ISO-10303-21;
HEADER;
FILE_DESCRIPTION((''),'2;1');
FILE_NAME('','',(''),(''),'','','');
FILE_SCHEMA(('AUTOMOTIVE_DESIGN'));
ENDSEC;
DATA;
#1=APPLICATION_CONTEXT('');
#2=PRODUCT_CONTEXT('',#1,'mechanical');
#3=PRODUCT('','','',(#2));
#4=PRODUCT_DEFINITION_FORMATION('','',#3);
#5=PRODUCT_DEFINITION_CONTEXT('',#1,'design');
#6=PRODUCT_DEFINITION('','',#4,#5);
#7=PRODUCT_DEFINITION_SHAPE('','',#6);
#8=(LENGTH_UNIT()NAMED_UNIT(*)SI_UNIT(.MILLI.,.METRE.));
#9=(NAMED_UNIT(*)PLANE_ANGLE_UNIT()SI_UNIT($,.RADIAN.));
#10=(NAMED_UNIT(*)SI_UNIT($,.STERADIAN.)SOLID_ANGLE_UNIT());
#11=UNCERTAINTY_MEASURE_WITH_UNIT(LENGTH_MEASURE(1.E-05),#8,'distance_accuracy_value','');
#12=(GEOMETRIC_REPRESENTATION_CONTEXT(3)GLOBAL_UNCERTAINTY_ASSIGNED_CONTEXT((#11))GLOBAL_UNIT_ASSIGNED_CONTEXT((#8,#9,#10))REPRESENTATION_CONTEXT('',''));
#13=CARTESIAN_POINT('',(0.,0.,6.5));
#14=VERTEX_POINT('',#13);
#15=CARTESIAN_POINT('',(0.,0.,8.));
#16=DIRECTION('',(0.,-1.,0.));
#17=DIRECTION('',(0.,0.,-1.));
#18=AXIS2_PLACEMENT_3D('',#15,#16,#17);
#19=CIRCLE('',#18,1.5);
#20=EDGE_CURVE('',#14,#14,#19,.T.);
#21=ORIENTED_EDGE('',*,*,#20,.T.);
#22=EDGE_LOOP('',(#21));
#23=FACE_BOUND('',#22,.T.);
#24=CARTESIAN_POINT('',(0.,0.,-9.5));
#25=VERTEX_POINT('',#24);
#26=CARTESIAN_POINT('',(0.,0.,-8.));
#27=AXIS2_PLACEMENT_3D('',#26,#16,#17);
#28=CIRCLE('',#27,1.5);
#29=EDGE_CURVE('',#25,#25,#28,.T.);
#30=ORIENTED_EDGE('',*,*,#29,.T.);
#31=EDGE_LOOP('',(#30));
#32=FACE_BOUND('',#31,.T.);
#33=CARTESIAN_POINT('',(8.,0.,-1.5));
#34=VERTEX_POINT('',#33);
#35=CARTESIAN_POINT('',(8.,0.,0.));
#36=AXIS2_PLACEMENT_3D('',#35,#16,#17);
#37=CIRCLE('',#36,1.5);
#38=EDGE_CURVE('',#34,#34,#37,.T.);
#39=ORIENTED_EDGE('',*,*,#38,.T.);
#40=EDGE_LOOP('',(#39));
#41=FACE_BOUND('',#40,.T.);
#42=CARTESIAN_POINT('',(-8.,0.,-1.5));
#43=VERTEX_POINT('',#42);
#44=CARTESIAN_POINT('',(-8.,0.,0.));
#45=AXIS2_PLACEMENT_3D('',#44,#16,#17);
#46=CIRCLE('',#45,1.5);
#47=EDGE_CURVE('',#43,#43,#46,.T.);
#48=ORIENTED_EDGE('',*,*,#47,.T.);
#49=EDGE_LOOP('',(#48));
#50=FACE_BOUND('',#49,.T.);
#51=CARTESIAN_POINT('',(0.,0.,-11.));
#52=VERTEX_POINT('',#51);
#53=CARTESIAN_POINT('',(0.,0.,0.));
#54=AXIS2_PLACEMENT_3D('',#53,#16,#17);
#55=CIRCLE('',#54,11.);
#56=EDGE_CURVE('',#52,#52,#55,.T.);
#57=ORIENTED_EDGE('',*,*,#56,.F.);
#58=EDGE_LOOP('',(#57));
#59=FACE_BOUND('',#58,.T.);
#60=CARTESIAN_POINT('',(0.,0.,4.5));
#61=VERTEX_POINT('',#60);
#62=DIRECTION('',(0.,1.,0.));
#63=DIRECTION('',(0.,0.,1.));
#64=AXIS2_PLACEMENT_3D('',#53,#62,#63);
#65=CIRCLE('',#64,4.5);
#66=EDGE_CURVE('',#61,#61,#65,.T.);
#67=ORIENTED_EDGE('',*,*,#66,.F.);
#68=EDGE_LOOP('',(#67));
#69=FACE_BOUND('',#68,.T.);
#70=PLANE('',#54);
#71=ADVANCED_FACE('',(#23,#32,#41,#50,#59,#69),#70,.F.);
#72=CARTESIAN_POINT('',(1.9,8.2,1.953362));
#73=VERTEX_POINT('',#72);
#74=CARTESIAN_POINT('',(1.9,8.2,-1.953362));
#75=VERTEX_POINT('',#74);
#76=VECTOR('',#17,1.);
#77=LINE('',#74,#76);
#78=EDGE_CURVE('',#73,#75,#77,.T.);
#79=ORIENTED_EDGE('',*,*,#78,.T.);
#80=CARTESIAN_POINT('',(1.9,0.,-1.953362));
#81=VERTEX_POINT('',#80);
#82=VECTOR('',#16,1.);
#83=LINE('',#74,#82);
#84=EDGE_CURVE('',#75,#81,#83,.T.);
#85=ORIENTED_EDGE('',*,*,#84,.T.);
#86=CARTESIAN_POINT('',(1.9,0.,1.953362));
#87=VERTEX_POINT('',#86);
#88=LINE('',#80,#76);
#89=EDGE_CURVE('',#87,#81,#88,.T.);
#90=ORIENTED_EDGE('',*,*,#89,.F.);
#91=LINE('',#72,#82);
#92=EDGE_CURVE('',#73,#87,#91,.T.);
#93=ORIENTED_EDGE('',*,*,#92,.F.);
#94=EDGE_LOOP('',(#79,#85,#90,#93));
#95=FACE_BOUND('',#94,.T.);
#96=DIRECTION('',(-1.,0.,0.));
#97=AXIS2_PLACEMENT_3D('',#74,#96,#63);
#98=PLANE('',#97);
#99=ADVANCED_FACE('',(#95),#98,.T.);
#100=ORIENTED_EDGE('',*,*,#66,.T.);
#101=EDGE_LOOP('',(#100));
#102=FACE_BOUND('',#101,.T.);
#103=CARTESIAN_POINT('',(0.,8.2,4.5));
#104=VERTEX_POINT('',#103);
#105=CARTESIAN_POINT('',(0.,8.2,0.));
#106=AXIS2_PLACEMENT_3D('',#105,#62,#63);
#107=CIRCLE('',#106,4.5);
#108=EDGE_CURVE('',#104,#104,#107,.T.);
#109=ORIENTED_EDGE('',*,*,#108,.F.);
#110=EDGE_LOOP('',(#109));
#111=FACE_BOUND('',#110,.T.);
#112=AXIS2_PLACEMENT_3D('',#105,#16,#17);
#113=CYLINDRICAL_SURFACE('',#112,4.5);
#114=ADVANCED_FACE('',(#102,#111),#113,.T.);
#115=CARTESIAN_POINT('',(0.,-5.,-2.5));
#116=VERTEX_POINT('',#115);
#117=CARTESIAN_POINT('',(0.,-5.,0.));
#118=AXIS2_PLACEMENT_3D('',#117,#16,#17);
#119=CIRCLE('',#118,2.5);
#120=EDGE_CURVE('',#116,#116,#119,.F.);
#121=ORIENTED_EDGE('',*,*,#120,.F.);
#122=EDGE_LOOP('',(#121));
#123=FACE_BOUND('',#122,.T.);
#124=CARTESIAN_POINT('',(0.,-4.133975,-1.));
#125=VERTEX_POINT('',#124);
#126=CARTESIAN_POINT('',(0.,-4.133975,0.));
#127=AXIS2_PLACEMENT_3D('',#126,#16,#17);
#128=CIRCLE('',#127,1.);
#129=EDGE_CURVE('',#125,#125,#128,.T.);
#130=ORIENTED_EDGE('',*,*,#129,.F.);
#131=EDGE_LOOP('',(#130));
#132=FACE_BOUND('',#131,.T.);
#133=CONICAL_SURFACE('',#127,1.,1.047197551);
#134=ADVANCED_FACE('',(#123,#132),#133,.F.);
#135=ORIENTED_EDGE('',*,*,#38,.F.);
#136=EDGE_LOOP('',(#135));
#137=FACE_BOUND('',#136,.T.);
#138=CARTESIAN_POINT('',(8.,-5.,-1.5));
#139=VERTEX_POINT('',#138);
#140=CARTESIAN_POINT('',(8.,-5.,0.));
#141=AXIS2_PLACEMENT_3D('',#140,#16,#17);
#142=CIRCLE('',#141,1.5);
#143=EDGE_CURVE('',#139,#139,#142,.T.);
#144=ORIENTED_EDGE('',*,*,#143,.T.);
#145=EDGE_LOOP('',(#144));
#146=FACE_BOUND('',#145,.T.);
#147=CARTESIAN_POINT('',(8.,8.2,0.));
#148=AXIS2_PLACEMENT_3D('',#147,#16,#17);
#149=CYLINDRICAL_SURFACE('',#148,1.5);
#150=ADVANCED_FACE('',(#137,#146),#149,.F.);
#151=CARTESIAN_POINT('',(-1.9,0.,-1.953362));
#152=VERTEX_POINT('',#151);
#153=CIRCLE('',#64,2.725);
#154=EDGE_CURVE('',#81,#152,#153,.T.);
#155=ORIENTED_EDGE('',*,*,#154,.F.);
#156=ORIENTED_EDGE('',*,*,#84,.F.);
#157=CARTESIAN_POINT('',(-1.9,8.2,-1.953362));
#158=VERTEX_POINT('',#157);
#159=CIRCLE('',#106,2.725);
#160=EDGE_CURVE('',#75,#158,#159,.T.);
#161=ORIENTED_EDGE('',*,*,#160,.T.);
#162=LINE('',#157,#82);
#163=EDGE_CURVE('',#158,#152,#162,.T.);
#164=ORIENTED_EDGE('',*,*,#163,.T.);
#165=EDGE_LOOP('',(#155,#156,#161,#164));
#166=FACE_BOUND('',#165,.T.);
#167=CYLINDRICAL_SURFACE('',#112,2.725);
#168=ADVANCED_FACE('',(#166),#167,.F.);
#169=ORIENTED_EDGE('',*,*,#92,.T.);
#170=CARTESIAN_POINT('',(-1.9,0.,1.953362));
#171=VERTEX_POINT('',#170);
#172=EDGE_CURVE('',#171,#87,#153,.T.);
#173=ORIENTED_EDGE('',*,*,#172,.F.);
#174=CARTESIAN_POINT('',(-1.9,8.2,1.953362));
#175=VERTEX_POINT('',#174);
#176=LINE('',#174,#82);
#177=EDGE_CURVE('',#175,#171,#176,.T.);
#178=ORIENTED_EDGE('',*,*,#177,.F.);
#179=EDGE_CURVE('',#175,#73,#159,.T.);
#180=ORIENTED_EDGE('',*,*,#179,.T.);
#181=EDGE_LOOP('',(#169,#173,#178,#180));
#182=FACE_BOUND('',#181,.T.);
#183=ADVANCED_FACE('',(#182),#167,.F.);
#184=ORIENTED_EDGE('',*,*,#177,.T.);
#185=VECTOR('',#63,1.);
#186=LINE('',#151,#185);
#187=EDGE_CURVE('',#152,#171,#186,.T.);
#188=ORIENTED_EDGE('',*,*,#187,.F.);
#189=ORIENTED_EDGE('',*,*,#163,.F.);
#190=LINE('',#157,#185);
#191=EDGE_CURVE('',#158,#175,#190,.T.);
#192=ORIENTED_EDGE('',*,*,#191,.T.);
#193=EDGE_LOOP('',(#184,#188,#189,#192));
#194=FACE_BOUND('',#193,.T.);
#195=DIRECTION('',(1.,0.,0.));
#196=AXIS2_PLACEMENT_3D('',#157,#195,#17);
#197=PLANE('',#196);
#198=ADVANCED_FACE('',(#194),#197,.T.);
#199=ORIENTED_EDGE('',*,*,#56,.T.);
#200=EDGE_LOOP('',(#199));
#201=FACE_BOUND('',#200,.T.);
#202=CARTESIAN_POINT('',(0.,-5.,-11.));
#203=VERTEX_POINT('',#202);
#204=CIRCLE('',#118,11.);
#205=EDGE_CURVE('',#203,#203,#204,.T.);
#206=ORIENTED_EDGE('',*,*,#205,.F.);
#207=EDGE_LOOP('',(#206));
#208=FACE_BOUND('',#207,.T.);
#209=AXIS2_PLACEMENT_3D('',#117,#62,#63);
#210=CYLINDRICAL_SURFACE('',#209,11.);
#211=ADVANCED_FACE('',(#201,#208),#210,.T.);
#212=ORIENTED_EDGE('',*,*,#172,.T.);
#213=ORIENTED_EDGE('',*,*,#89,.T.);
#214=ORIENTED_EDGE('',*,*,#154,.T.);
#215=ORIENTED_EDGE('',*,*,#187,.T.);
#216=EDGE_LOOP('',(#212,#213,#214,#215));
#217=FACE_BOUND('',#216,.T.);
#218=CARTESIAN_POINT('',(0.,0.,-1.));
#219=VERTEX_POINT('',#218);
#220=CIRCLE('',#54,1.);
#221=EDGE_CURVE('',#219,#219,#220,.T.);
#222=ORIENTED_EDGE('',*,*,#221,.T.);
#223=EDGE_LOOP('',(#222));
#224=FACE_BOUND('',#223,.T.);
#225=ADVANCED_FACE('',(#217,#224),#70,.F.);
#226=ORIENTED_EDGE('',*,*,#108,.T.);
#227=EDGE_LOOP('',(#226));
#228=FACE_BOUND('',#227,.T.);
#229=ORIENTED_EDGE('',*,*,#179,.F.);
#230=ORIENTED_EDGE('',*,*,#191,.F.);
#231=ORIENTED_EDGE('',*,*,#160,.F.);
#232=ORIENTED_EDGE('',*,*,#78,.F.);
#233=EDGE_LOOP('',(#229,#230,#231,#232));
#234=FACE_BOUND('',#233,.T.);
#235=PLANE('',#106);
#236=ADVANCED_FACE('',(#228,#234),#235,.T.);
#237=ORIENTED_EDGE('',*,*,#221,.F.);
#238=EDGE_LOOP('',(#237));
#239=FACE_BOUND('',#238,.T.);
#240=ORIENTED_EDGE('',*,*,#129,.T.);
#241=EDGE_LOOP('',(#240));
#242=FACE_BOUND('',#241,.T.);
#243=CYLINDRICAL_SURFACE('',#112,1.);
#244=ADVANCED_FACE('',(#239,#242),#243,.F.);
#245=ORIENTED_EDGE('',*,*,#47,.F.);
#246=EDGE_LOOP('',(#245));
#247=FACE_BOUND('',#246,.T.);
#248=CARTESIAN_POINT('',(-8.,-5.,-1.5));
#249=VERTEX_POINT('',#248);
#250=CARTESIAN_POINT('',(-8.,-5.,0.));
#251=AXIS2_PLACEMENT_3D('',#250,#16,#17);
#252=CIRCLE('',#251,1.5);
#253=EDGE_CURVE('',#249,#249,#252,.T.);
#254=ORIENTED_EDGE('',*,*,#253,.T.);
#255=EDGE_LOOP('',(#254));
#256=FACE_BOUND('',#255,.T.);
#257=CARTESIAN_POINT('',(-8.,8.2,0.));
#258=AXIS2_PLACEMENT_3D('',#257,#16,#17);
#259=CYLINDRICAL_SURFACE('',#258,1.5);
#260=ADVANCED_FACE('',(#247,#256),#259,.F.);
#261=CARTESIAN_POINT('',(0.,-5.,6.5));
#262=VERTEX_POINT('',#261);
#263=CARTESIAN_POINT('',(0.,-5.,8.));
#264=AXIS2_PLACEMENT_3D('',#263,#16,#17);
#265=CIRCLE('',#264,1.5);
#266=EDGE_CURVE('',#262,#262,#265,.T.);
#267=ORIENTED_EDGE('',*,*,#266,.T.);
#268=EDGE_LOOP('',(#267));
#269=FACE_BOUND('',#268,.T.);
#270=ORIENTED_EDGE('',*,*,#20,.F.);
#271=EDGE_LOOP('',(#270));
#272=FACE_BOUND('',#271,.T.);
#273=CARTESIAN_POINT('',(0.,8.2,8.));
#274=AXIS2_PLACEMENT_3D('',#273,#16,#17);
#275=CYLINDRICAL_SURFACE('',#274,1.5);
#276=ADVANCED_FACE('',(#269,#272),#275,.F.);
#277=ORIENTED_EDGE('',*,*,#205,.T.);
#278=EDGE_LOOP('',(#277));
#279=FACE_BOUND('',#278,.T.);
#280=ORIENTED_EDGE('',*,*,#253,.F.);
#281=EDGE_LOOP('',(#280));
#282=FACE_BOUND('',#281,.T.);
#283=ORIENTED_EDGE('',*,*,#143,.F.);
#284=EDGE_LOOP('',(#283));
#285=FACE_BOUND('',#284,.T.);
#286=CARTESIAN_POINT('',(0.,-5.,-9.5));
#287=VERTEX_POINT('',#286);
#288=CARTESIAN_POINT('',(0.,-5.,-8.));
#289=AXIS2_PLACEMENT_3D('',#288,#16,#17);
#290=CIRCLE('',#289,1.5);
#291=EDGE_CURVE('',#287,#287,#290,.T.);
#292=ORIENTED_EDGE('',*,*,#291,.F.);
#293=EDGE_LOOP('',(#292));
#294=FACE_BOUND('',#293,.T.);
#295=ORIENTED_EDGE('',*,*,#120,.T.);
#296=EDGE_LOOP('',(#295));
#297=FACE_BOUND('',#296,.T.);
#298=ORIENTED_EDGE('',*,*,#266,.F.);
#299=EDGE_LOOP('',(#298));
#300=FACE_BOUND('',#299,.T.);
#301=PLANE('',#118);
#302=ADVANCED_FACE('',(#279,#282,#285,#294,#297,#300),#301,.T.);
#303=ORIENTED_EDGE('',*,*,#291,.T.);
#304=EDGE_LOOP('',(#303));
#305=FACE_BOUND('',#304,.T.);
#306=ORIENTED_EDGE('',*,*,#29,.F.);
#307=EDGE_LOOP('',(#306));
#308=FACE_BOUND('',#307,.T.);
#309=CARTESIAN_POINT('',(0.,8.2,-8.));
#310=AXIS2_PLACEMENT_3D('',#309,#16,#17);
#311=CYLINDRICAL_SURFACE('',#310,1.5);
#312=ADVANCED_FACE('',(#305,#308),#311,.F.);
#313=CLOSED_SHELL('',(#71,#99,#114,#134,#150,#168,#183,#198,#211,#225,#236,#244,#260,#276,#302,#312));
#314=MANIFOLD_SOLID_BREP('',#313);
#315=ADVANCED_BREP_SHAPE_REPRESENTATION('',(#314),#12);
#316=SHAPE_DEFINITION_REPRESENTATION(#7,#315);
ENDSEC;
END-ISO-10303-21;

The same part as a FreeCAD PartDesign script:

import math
import FreeCAD as App
import Part
import Sketcher
from FreeCAD import Vector
Q = App.Units.Quantity


def edges_at(feature, points):
    """Names of the edges that pass closest to the given points."""
    edges = feature.Shape.Edges
    near = lambda p: min(range(len(edges)), key=lambda i: edges[i].distToShape(Part.Vertex(*p))[0])
    return sorted({f"Edge{near(p) + 1}" for p in points})

doc = App.newDocument("Part")
params = doc.addObject("Spreadsheet::Sheet", "Params")
for row, (alias, value) in enumerate([
    ("sketch1_diameter", "9 mm"),
    ("pad1_length", "8.2 mm"),
    ("sketch2_diameter", "22 mm"),
    ("pad2_length", "5 mm"),
    ("sketch3_diameter", "2 mm"),
    ("sketch4_diameter", "3 mm"),
    ("chamfer_size", "1.5 mm"),
    ("chamfer_size2", "0.866025 mm"),
], start=1):
    params.set(f"A{row}", alias)
    params.set(f"B{row}", "=" + value)
    params.setAlias(f"B{row}", alias)

body = doc.addObject("PartDesign::Body", "Body")

# Sketch on XZ plane
sketch1 = body.newObject("Sketcher::SketchObject", "Sketch")
sketch1.AttachmentSupport = (doc.getObject("XZ_Plane"), [""])
sketch1.MapMode = "FlatFace"
sketch1.addGeometry([
    Part.Circle(Vector(0, 0, 0), Vector(0, 0, 1), 4.5),  # 0
    Part.LineSegment(Vector(-1.9, 2, 0), Vector(-1.9, -2, 0)),  # 1
    Part.ArcOfCircle(Part.Circle(Vector(0, 0, 0), Vector(0, 0, 1), 2.7), math.radians(-134), math.radians(-46)),  # 2
    Part.LineSegment(Vector(1.9, -2, 0), Vector(1.9, 2, 0)),  # 3
    Part.ArcOfCircle(Part.Circle(Vector(0, 0, 0), Vector(0, 0, 1), 2.7), math.radians(46), math.radians(134)),  # 4
], False)
sketch1.addConstraint([
    Sketcher.Constraint("Coincident", 1, 2, 2, 1),
    Sketcher.Constraint("Coincident", 2, 2, 3, 1),
    Sketcher.Constraint("Coincident", 3, 2, 4, 1),
    Sketcher.Constraint("Coincident", 4, 2, 1, 1),
    Sketcher.Constraint("Vertical", 1),
    Sketcher.Constraint("Vertical", 3),
    Sketcher.Constraint("Coincident", 0, 3, -1, 1),
    Sketcher.Constraint("Coincident", 2, 3, -1, 1),
    Sketcher.Constraint("Coincident", 4, 3, -1, 1),
    Sketcher.Constraint("Equal", 2, 4),
    Sketcher.Constraint("Horizontal", 1, 2, 2, 2),
    Sketcher.Constraint("Diameter", 0, Q("9 mm")),
    Sketcher.Constraint("Radius", 2, Q("2.725 mm")),
    Sketcher.Constraint("DistanceX", 1, 2, -1, 1, Q("1.9 mm")),
])
sketch1.setExpression("Constraints[11]", "Params.sketch1_diameter")
pad1 = body.newObject("PartDesign::Pad", "Pad")
pad1.Profile = sketch1
pad1.setExpression("Length", "Params.pad1_length")
pad1.Reversed = True

# Sketch on XZ plane
sketch2 = body.newObject("Sketcher::SketchObject", "Sketch001")
sketch2.AttachmentSupport = (doc.getObject("XZ_Plane"), [""])
sketch2.MapMode = "FlatFace"
sketch2.addGeometry(Part.Circle(Vector(0, 0, 0), Vector(0, 0, 1), 11), False)
sketch2.addConstraint([
    Sketcher.Constraint("Coincident", 0, 3, -1, 1),
    Sketcher.Constraint("Diameter", 0, Q("22 mm")),
])
sketch2.setExpression("Constraints[1]", "Params.sketch2_diameter")
pad2 = body.newObject("PartDesign::Pad", "Pad001")
pad2.Profile = sketch2
pad2.setExpression("Length", "Params.pad2_length")

# Sketch on XZ plane
sketch3 = body.newObject("Sketcher::SketchObject", "Sketch002")
sketch3.AttachmentSupport = (doc.getObject("XZ_Plane"), [""])
sketch3.MapMode = "FlatFace"
sketch3.AttachmentOffset = App.Placement(Vector(0, 0, 5), App.Rotation())
sketch3.addGeometry(Part.Circle(Vector(0, 0, 0), Vector(0, 0, 1), 1), False)
sketch3.addConstraint([
    Sketcher.Constraint("Coincident", 0, 3, -1, 1),
    Sketcher.Constraint("Diameter", 0, Q("2 mm")),
])
sketch3.setExpression("Constraints[1]", "Params.sketch3_diameter")
pocket1 = body.newObject("PartDesign::Pocket", "Pocket")
pocket1.Profile = sketch3
pocket1.Type = "ThroughAll"

# Sketch on XZ plane
sketch4 = body.newObject("Sketcher::SketchObject", "Sketch003")
sketch4.AttachmentSupport = (doc.getObject("XZ_Plane"), [""])
sketch4.MapMode = "FlatFace"
sketch4.AttachmentOffset = App.Placement(Vector(0, 0, 5), App.Rotation())
sketch4.addGeometry([
    Part.Circle(Vector(0, 8, 0), Vector(0, 0, 1), 1.5),
    Part.Circle(Vector(-8, 0, 0), Vector(0, 0, 1), 1.5),
    Part.Circle(Vector(0, -8, 0), Vector(0, 0, 1), 1.5),
    Part.Circle(Vector(8, 0, 0), Vector(0, 0, 1), 1.5),
], False)
sketch4.addConstraint([
    Sketcher.Constraint("Equal", 0, 1),
    Sketcher.Constraint("Equal", 1, 2),
    Sketcher.Constraint("Equal", 2, 3),
    Sketcher.Constraint("Symmetric", 0, 3, 2, 3, -1, 1),
    Sketcher.Constraint("Symmetric", 1, 3, 3, 3, -1, 1),
    Sketcher.Constraint("PointOnObject", 0, 3, -2),
    Sketcher.Constraint("PointOnObject", 1, 3, -1),
    Sketcher.Constraint("Diameter", 0, Q("3 mm")),
    Sketcher.Constraint("DistanceY", -1, 1, 0, 3, Q("8 mm")),
    Sketcher.Constraint("DistanceX", 1, 3, -1, 1, Q("8 mm")),
])
sketch4.setExpression("Constraints[7]", "Params.sketch4_diameter")
pocket2 = body.newObject("PartDesign::Pocket", "Pocket001")
pocket2.Profile = sketch4
pocket2.Type = "ThroughAll"
doc.recompute()

chamfer = body.newObject("PartDesign::Chamfer", "Chamfer")
chamfer.Base = (pocket2, edges_at(pocket2, [(0, -5, 1)]))
chamfer.ChamferType = "Two distances"
chamfer.setExpression("Size", "Params.chamfer_size")
chamfer.setExpression("Size2", "Params.chamfer_size2")

doc.recompute()
